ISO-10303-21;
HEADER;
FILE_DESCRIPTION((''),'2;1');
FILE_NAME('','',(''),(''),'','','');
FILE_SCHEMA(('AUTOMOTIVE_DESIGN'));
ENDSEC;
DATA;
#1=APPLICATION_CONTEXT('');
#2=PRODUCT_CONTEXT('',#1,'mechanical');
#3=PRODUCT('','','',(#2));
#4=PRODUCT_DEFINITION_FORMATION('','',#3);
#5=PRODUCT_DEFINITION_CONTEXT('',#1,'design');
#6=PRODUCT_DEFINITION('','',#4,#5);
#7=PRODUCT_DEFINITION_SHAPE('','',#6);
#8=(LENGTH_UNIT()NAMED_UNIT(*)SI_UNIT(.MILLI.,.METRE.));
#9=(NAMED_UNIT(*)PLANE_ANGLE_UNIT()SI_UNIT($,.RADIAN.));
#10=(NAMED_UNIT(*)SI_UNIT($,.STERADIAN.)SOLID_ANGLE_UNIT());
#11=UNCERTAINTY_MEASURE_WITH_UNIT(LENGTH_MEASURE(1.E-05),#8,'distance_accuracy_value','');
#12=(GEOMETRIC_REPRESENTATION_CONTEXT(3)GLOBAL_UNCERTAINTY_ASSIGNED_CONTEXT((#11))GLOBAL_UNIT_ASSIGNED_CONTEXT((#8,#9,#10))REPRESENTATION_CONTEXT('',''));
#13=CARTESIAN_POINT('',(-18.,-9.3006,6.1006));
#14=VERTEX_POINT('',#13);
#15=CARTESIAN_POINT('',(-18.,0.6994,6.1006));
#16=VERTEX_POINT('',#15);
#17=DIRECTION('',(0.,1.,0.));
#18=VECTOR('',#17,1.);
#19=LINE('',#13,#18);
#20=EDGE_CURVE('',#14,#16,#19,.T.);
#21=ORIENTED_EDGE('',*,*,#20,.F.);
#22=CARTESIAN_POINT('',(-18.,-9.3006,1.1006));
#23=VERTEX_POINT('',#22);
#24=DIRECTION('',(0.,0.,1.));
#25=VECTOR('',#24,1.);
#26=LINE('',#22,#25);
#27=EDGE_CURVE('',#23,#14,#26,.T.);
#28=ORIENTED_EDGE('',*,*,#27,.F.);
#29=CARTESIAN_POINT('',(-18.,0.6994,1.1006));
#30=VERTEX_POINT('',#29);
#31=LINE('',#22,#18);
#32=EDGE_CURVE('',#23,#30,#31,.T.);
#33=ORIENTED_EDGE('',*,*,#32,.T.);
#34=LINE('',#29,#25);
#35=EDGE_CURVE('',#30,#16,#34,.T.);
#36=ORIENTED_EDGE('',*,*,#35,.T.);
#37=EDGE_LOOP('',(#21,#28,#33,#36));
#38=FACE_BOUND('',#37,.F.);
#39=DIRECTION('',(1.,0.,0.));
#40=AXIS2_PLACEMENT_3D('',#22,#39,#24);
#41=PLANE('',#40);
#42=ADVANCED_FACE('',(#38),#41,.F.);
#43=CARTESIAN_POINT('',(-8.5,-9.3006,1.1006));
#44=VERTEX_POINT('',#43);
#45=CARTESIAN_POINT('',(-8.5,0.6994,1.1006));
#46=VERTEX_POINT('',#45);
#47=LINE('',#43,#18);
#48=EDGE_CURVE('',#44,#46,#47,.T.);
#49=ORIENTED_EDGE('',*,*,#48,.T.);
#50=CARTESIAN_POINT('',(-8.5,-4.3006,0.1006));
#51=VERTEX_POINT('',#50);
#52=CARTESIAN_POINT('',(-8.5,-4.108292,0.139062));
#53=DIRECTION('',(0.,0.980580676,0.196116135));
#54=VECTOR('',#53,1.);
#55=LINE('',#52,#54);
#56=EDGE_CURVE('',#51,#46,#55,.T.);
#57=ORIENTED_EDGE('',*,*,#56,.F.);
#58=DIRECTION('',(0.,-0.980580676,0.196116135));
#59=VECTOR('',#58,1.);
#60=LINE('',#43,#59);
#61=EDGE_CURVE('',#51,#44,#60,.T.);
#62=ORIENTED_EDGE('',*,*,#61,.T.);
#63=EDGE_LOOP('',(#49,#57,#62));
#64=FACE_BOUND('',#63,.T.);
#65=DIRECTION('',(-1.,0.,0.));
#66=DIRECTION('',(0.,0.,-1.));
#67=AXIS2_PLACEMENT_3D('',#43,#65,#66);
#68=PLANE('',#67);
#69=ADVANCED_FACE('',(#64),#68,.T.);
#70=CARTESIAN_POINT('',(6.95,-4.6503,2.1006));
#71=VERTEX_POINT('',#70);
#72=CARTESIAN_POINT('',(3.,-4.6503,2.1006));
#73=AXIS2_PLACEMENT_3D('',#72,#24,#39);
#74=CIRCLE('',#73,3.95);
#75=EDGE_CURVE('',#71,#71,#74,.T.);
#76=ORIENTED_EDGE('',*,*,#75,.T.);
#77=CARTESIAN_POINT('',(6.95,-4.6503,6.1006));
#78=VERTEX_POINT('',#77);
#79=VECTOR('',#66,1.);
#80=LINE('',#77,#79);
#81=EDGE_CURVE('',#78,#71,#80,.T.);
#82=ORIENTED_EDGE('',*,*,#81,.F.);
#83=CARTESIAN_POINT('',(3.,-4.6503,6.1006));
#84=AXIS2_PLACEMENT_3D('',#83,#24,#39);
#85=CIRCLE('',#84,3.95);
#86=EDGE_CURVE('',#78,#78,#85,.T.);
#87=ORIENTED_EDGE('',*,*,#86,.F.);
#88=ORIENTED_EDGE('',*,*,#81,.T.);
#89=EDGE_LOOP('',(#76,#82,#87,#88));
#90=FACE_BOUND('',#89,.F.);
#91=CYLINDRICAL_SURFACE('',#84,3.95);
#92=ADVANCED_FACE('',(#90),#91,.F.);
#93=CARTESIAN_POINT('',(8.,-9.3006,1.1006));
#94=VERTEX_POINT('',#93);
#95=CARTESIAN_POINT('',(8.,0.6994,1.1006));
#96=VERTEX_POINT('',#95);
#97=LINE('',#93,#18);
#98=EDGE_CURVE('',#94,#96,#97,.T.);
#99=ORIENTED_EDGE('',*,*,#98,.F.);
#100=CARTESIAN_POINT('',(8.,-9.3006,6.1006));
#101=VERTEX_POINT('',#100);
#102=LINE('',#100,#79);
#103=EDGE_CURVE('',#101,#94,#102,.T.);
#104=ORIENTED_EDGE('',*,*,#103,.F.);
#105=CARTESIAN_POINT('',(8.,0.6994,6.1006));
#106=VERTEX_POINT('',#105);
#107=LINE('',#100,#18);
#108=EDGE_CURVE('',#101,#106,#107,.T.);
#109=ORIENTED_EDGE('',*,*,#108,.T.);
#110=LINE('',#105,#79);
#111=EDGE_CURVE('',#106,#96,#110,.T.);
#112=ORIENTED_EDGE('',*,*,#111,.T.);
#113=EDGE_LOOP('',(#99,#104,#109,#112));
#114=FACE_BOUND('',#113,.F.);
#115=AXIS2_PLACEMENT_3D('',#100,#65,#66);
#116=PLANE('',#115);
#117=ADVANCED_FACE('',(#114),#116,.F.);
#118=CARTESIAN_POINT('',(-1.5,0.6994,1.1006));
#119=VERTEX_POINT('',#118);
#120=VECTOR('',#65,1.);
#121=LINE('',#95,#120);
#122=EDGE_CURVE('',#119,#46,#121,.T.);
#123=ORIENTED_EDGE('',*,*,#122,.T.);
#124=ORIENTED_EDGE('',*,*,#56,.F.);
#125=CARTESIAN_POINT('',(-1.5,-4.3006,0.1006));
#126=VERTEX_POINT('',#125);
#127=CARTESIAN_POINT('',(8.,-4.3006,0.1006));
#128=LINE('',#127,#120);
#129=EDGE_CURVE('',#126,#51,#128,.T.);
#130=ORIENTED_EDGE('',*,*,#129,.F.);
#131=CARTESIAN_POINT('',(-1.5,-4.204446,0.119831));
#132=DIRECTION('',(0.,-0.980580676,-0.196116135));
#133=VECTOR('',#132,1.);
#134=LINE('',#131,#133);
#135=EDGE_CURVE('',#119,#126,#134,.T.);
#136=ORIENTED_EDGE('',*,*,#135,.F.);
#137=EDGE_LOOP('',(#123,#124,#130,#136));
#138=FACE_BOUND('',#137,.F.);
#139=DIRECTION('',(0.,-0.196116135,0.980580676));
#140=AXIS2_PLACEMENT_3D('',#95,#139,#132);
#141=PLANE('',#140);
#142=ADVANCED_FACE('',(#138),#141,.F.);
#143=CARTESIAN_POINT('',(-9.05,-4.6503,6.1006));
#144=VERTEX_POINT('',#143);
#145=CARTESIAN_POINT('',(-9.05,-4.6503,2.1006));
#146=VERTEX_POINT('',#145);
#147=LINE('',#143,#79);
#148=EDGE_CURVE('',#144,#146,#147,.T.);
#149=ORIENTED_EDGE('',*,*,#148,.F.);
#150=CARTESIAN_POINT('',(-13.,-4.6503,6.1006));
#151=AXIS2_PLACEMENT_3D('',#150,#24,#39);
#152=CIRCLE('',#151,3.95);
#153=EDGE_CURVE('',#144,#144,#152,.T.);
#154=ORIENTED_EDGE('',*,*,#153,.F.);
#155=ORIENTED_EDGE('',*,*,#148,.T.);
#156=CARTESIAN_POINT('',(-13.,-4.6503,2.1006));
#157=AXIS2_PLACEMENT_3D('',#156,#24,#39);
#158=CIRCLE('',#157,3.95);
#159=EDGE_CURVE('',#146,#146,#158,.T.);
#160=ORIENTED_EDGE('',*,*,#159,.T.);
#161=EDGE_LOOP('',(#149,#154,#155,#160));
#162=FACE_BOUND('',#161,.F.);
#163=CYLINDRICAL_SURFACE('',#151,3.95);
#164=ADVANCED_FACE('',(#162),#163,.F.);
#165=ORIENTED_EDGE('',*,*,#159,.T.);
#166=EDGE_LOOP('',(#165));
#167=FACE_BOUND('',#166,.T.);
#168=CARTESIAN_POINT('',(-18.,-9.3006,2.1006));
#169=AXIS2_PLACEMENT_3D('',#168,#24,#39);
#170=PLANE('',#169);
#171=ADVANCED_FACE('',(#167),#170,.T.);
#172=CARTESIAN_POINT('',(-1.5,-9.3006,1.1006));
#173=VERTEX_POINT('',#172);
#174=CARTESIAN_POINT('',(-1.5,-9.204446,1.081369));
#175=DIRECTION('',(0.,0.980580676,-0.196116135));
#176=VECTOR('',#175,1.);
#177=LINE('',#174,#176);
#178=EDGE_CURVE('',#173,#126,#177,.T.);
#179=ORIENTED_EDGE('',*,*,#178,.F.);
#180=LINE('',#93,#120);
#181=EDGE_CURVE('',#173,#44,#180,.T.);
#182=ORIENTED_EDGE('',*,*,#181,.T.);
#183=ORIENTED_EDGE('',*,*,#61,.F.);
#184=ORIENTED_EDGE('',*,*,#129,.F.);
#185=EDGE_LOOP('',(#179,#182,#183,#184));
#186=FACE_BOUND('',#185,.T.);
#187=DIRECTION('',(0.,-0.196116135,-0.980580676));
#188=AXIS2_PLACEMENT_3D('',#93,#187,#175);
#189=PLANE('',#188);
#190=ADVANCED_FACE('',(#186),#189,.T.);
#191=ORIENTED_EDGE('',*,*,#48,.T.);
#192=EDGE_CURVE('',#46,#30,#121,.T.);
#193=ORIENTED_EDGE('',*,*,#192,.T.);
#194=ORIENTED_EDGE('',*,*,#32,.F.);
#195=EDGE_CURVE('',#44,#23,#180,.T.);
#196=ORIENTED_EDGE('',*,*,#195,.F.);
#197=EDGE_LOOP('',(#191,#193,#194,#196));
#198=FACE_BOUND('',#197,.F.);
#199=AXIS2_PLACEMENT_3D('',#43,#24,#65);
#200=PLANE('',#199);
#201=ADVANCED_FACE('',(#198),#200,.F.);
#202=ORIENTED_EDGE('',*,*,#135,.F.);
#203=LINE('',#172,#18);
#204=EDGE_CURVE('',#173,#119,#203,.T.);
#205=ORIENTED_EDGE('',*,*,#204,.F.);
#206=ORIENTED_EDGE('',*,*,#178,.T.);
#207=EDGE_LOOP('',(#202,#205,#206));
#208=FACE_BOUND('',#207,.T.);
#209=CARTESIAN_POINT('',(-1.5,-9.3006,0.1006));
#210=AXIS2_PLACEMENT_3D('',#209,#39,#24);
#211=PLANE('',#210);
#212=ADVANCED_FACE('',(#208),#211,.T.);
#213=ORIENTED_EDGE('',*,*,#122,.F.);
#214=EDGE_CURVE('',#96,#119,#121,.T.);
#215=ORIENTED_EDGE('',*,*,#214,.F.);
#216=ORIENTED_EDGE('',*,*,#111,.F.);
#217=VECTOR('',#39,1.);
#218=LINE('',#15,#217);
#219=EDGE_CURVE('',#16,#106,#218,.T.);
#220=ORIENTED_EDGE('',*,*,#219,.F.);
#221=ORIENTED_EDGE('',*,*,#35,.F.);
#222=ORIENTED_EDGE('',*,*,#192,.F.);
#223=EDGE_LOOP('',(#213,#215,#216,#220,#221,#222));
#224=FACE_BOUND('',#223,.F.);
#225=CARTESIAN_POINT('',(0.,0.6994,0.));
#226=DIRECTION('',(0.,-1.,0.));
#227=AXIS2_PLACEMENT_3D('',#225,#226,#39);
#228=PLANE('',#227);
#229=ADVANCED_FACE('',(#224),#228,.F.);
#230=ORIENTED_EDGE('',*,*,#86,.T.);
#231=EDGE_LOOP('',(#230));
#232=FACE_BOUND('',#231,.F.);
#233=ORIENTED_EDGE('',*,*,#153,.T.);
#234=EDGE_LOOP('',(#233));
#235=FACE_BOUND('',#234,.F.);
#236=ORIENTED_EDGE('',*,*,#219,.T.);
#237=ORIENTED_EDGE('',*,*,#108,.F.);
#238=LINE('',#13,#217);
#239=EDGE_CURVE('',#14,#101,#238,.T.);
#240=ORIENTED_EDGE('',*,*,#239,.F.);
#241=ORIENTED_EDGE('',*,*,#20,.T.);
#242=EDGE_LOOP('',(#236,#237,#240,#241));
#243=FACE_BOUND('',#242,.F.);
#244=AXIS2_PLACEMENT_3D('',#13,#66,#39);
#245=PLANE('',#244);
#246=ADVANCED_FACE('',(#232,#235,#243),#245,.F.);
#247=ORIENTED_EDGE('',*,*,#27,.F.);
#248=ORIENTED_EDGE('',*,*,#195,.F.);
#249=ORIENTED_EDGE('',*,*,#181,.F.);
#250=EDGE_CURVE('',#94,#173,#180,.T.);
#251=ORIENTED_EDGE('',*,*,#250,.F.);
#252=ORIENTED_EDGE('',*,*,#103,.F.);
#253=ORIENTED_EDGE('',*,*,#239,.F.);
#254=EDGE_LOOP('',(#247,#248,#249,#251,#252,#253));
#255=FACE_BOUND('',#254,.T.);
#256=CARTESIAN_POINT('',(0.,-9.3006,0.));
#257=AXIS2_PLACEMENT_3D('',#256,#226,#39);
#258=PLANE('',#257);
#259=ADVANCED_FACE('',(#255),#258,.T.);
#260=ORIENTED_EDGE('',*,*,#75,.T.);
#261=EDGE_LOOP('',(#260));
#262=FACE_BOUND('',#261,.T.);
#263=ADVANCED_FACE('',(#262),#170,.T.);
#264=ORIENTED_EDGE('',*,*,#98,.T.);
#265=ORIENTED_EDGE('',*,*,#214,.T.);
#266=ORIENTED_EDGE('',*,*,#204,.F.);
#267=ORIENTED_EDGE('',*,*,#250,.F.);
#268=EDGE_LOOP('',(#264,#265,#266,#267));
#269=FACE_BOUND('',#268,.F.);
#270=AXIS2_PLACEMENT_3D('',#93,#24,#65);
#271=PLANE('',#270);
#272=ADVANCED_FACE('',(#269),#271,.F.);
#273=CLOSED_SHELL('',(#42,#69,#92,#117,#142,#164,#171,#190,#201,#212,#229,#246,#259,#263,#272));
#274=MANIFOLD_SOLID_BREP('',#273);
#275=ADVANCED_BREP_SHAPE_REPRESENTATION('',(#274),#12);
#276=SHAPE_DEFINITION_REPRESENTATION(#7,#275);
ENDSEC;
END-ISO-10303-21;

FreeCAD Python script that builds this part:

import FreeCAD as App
import Part
import Sketcher

doc = App.newDocument("Part")
body = doc.addObject("PartDesign::Body", "Body")

sketch1 = body.newObject("Sketcher::SketchObject", "Sketch")
sketch1.AttachmentSupport = (doc.getObject("XZ_Plane"), [""])
sketch1.MapMode = "FlatFace"
sketch1.AttachmentOffset = App.Placement(App.Vector(0, 0, 9.3006), App.Rotation())
sketch1.addGeometry(Part.LineSegment(App.Vector(8, 6.1006, 0), App.Vector(-18, 6.1006, 0)), False)
sketch1.addGeometry(Part.LineSegment(App.Vector(-18, 6.1006, 0), App.Vector(-18, 1.1006, 0)), False)
sketch1.addGeometry(Part.LineSegment(App.Vector(-18, 1.1006, 0), App.Vector(-8.5, 1.1006, 0)), False)
sketch1.addGeometry(Part.LineSegment(App.Vector(-8.5, 1.1006, 0), App.Vector(-8.5, 0.1006, 0)), False)
sketch1.addGeometry(Part.LineSegment(App.Vector(-8.5, 0.1006, 0), App.Vector(-1.5, 0.1006, 0)), False)
sketch1.addGeometry(Part.LineSegment(App.Vector(-1.5, 0.1006, 0), App.Vector(-1.5, 1.1006, 0)), False)
sketch1.addGeometry(Part.LineSegment(App.Vector(-1.5, 1.1006, 0), App.Vector(8, 1.1006, 0)), False)
sketch1.addGeometry(Part.LineSegment(App.Vector(8, 1.1006, 0), App.Vector(8, 6.1006, 0)), False)
sketch1.addConstraint(Sketcher.Constraint("Coincident", 0, 2, 1, 1))
sketch1.addConstraint(Sketcher.Constraint("Coincident", 1, 2, 2, 1))
sketch1.addConstraint(Sketcher.Constraint("Coincident", 2, 2, 3, 1))
sketch1.addConstraint(Sketcher.Constraint("Coincident", 3, 2, 4, 1))
sketch1.addConstraint(Sketcher.Constraint("Coincident", 4, 2, 5, 1))
sketch1.addConstraint(Sketcher.Constraint("Coincident", 5, 2, 6, 1))
sketch1.addConstraint(Sketcher.Constraint("Coincident", 6, 2, 7, 1))
sketch1.addConstraint(Sketcher.Constraint("Coincident", 7, 2, 0, 1))
sketch1.addConstraint(Sketcher.Constraint("Horizontal", 0))
sketch1.addConstraint(Sketcher.Constraint("Vertical", 1))
sketch1.addConstraint(Sketcher.Constraint("Horizontal", 2))
sketch1.addConstraint(Sketcher.Constraint("Vertical", 3))
sketch1.addConstraint(Sketcher.Constraint("Horizontal", 4))
sketch1.addConstraint(Sketcher.Constraint("Vertical", 5))
sketch1.addConstraint(Sketcher.Constraint("Horizontal", 6))
sketch1.addConstraint(Sketcher.Constraint("Vertical", 7))
sketch1.addConstraint(Sketcher.Constraint("Horizontal", 2, 2, 5, 2))
sketch1.addConstraint(Sketcher.Constraint("Equal", 2, 6))
sketch1.addConstraint(Sketcher.Constraint("DistanceX", 4, 1, 4, 2, 7.0))
sketch1.addConstraint(Sketcher.Constraint("DistanceY", 1, 2, 1, 1, 5.0))
sketch1.addConstraint(Sketcher.Constraint("DistanceY", 3, 2, 3, 1, 1.0))
sketch1.addConstraint(Sketcher.Constraint("DistanceX", 0, 2, 0, 1, 26.0))
sketch1.addConstraint(Sketcher.Constraint("DistanceX", 0, 2, -1, 1, 18.0))
sketch1.addConstraint(Sketcher.Constraint("DistanceY", -1, 1, 0, 2, 6.1006))
pad1 = body.newObject("PartDesign::Pad", "Pad")
pad1.Profile = sketch1
pad1.Length = 10
pad1.Reversed = True

sketch2 = body.newObject("Sketcher::SketchObject", "Sketch001")
sketch2.AttachmentSupport = (doc.getObject("XY_Plane"), [""])
sketch2.MapMode = "FlatFace"
sketch2.AttachmentOffset = App.Placement(App.Vector(0, 0, 6.1006), App.Rotation())
sketch2.addGeometry(Part.Circle(App.Vector(-13, -4.6503, 0), App.Vector(0, 0, 1), 3.95), False)
sketch2.addGeometry(Part.Circle(App.Vector(3, -4.6503, 0), App.Vector(0, 0, 1), 3.95), False)
sketch2.addConstraint(Sketcher.Constraint("Equal", 0, 1))
sketch2.addConstraint(Sketcher.Constraint("Horizontal", 0, 3, 1, 3))
sketch2.addConstraint(Sketcher.Constraint("Diameter", 0, 7.9))
sketch2.addConstraint(Sketcher.Constraint("DistanceX", 0, 3, -1, 1, 13.0))
sketch2.addConstraint(Sketcher.Constraint("DistanceX", -1, 1, 1, 3, 3.0))
sketch2.addConstraint(Sketcher.Constraint("DistanceY", 0, 3, -1, 1, 4.6503))
pocket1 = body.newObject("PartDesign::Pocket", "Pocket")
pocket1.Profile = sketch2
pocket1.Length = 4

sketch3 = body.newObject("Sketcher::SketchObject", "Sketch002")
sketch3.AttachmentSupport = (doc.getObject("YZ_Plane"), [""])
sketch3.MapMode = "FlatFace"
sketch3.AttachmentOffset = App.Placement(App.Vector(0, 0, 8), App.Rotation())
sketch3.addGeometry(Part.LineSegment(App.Vector(0.6994, 1.1006, 0), App.Vector(-4.3006, 0.1006, 0)), False)
sketch3.addGeometry(Part.LineSegment(App.Vector(-4.3006, 0.1006, 0), App.Vector(0.6994, 0.1006, 0)), False)
sketch3.addGeometry(Part.LineSegment(App.Vector(0.6994, 0.1006, 0), App.Vector(0.6994, 1.1006, 0)), False)
sketch3.addGeometry(Part.LineSegment(App.Vector(-9.3006, 1.1006, 0), App.Vector(-9.3006, 0.1006, 0)), False)
sketch3.addGeometry(Part.LineSegment(App.Vector(-9.3006, 0.1006, 0), App.Vector(-4.3006, 0.1006, 0)), False)
sketch3.addGeometry(Part.LineSegment(App.Vector(-4.3006, 0.1006, 0), App.Vector(-9.3006, 1.1006, 0)), False)
sketch3.addConstraint(Sketcher.Constraint("Coincident", 0, 2, 1, 1))
sketch3.addConstraint(Sketcher.Constraint("Coincident", 1, 2, 2, 1))
sketch3.addConstraint(Sketcher.Constraint("Coincident", 2, 2, 0, 1))
sketch3.addConstraint(Sketcher.Constraint("Coincident", 3, 2, 4, 1))
sketch3.addConstraint(Sketcher.Constraint("Coincident", 4, 2, 5, 1))
sketch3.addConstraint(Sketcher.Constraint("Coincident", 5, 2, 3, 1))
sketch3.addConstraint(Sketcher.Constraint("Horizontal", 1))
sketch3.addConstraint(Sketcher.Constraint("Vertical", 2))
sketch3.addConstraint(Sketcher.Constraint("Vertical", 3))
sketch3.addConstraint(Sketcher.Constraint("Horizontal", 4))
sketch3.addConstraint(Sketcher.Constraint("Coincident", 4, 2, 0, 2))
sketch3.addConstraint(Sketcher.Constraint("Horizontal", 2, 2, 5, 2))
sketch3.addConstraint(Sketcher.Constraint("Equal", 1, 4))
sketch3.addConstraint(Sketcher.Constraint("DistanceX", 1, 1, 1, 2, 5.0))
sketch3.addConstraint(Sketcher.Constraint("DistanceY", 2, 1, 2, 2, 1.0))
sketch3.addConstraint(Sketcher.Constraint("DistanceX", 0, 2, -1, 1, 4.3006))
sketch3.addConstraint(Sketcher.Constraint("DistanceY", -1, 1, 0, 2, 0.1006))
pocket2 = body.newObject("PartDesign::Pocket", "Pocket001")
pocket2.Profile = sketch3
pocket2.Type = "ThroughAll"

doc.recompute()
